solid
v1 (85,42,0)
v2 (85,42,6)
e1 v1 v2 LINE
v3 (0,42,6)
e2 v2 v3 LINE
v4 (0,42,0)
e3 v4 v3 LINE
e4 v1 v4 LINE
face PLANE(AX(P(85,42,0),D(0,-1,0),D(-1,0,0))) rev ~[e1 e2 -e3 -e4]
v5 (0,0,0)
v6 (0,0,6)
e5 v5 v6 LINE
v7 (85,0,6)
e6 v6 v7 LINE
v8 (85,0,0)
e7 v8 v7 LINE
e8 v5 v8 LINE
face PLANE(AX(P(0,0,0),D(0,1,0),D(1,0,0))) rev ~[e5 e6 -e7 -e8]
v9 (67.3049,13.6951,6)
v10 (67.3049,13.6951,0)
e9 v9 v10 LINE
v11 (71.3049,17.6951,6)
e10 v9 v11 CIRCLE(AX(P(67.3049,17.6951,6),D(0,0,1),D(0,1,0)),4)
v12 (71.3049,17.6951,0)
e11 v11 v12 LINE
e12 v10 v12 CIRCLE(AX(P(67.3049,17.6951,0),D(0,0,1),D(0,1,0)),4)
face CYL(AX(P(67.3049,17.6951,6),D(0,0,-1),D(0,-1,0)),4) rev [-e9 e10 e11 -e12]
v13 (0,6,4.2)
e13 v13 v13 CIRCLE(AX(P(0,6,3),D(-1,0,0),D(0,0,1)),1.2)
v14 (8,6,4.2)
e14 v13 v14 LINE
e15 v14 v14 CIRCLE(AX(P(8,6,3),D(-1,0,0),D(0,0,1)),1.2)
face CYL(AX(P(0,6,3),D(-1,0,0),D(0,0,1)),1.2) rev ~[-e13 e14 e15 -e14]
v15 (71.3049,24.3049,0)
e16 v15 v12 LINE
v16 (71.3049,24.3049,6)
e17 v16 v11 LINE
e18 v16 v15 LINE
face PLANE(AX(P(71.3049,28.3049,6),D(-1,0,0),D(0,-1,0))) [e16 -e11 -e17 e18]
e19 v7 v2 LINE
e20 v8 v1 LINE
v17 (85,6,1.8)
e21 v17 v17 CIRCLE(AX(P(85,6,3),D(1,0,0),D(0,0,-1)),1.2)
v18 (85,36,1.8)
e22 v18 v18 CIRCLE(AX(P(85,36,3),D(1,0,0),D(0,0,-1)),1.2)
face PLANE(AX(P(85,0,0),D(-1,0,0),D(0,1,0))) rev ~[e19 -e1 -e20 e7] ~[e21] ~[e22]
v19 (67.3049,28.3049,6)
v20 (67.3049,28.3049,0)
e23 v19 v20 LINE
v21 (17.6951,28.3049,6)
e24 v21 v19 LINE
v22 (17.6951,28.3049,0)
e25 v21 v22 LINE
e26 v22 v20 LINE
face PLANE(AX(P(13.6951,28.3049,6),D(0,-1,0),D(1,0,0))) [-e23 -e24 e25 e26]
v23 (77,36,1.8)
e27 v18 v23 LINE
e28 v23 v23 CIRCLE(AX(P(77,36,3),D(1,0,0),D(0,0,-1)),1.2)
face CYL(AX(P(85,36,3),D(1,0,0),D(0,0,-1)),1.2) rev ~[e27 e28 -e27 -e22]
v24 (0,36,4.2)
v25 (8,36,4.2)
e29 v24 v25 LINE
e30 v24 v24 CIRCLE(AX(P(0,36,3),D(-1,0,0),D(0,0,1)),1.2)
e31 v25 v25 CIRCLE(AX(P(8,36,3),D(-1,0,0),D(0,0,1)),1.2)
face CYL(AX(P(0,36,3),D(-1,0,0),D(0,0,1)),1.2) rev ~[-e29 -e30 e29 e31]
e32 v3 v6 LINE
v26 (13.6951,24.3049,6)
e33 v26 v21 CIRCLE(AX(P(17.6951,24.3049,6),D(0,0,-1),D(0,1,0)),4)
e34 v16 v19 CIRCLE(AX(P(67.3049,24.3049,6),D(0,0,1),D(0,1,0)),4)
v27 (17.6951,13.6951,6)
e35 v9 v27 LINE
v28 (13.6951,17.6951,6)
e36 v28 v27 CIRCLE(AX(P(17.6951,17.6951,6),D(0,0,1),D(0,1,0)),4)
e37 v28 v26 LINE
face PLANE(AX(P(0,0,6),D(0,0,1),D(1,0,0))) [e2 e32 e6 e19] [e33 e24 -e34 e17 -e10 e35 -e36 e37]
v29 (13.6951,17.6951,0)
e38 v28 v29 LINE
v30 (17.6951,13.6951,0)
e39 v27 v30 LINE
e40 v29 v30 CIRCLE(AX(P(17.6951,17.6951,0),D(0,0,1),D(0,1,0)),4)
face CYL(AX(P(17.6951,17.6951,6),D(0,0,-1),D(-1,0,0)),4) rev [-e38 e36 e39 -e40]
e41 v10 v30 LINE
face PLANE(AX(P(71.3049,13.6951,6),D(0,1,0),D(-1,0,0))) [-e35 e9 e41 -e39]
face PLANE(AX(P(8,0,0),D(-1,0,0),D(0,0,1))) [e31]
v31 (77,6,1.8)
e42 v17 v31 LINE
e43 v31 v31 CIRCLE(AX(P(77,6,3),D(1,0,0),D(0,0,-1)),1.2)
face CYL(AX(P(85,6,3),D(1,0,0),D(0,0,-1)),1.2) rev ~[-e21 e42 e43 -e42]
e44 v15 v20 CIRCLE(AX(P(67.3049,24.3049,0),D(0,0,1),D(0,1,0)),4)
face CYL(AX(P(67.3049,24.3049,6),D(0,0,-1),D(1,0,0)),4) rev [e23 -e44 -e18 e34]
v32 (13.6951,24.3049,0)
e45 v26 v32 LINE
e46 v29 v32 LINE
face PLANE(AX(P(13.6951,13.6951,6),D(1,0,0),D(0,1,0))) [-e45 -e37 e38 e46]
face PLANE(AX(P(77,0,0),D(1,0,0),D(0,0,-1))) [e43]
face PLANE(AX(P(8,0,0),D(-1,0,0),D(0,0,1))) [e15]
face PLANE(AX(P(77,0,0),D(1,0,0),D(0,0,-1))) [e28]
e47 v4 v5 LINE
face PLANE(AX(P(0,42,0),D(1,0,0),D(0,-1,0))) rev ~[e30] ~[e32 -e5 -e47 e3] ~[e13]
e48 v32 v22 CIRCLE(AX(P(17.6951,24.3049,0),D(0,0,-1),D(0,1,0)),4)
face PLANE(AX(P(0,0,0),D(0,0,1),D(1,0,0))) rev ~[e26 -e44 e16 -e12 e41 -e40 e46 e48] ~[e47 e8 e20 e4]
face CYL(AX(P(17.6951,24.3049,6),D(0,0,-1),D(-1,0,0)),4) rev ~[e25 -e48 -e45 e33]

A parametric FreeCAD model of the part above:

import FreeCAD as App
import Part
import Sketcher


def edges_at(feature, points):
    """Names of the edges that pass closest to the given points."""
    edges = feature.Shape.Edges
    near = lambda p: min(range(len(edges)), key=lambda i: edges[i].distToShape(Part.Vertex(*p))[0])
    return sorted({f"Edge{near(p) + 1}" for p in points})

doc = App.newDocument("Part")
body = doc.addObject("PartDesign::Body", "Body")

# Sketch on XY plane
sketch1 = doc.addObject("Sketcher::SketchObject", "Sketch")
body.addObject(sketch1)
sketch1.AttachmentSupport = (doc.XY_Plane, [""])
sketch1.MapMode = "FlatFace"
sketch1.addGeometry(Part.LineSegment(App.Vector(0, 42, 0), App.Vector(0, 0, 0)), False)
sketch1.addGeometry(Part.LineSegment(App.Vector(0, 0, 0), App.Vector(85, 0, 0)), False)
sketch1.addGeometry(Part.LineSegment(App.Vector(85, 0, 0), App.Vector(85, 42, 0)), False)
sketch1.addGeometry(Part.LineSegment(App.Vector(85, 42, 0), App.Vector(0, 42, 0)), False)
sketch1.addConstraint(Sketcher.Constraint("Coincident", 0, 2, 1, 1))
sketch1.addConstraint(Sketcher.Constraint("Coincident", 1, 2, 2, 1))
sketch1.addConstraint(Sketcher.Constraint("Coincident", 2, 2, 3, 1))
sketch1.addConstraint(Sketcher.Constraint("Coincident", 3, 2, 0, 1))
sketch1.addConstraint(Sketcher.Constraint("Vertical", 0))
sketch1.addConstraint(Sketcher.Constraint("Horizontal", 1))
sketch1.addConstraint(Sketcher.Constraint("Vertical", 2))
sketch1.addConstraint(Sketcher.Constraint("Horizontal", 3))
sketch1.addConstraint(Sketcher.Constraint("Coincident", 0, 2, -1, 1))
sketch1.addConstraint(Sketcher.Constraint("DistanceX", 1, 1, 1, 2, 85.0))
sketch1.addConstraint(Sketcher.Constraint("DistanceY", 0, 2, 0, 1, 42.0))
pad1 = doc.addObject("PartDesign::Pad", "Pad")
body.addObject(pad1)
pad1.Profile = sketch1
pad1.Length = 6

# Sketch on YZ plane
sketch2 = doc.addObject("Sketcher::SketchObject", "Sketch001")
body.addObject(sketch2)
sketch2.AttachmentSupport = (doc.YZ_Plane, [""])
sketch2.MapMode = "FlatFace"
sketch2.addGeometry(Part.Circle(App.Vector(36, 3, 0), App.Vector(0, 0, 1), 1.2), False)
sketch2.addGeometry(Part.Circle(App.Vector(6, 3, 0), App.Vector(0, 0, 1), 1.2), False)
sketch2.addConstraint(Sketcher.Constraint("Equal", 0, 1))
sketch2.addConstraint(Sketcher.Constraint("Horizontal", 0, 3, 1, 3))
sketch2.addConstraint(Sketcher.Constraint("Diameter", 0, 2.4))
sketch2.addConstraint(Sketcher.Constraint("DistanceX", -1, 1, 1, 3, 6.0))
sketch2.addConstraint(Sketcher.Constraint("DistanceX", -1, 1, 0, 3, 36.0))
sketch2.addConstraint(Sketcher.Constraint("DistanceY", -1, 1, 0, 3, 3.0))
pocket1 = doc.addObject("PartDesign::Pocket", "Pocket")
body.addObject(pocket1)
pocket1.Profile = sketch2
pocket1.Length = 8
pocket1.Reversed = True

# Sketch on YZ plane
sketch3 = doc.addObject("Sketcher::SketchObject", "Sketch002")
body.addObject(sketch3)
sketch3.AttachmentSupport = (doc.YZ_Plane, [""])
sketch3.MapMode = "FlatFace"
sketch3.AttachmentOffset = App.Placement(App.Vector(0, 0, 85), App.Rotation())
sketch3.addGeometry(Part.Circle(App.Vector(6, 3, 0), App.Vector(0, 0, 1), 1.2), False)
sketch3.addGeometry(Part.Circle(App.Vector(36, 3, 0), App.Vector(0, 0, 1), 1.2), False)
sketch3.addConstraint(Sketcher.Constraint("Equal", 0, 1))
sketch3.addConstraint(Sketcher.Constraint("Horizontal", 0, 3, 1, 3))
sketch3.addConstraint(Sketcher.Constraint("Diameter", 0, 2.4))
sketch3.addConstraint(Sketcher.Constraint("DistanceX", -1, 1, 0, 3, 6.0))
sketch3.addConstraint(Sketcher.Constraint("DistanceY", -1, 1, 0, 3, 3.0))
sketch3.addConstraint(Sketcher.Constraint("DistanceX", -1, 1, 1, 3, 36.0))
pocket2 = doc.addObject("PartDesign::Pocket", "Pocket001")
body.addObject(pocket2)
pocket2.Profile = sketch3
pocket2.Length = 8

# Sketch on XY plane
sketch4 = doc.addObject("Sketcher::SketchObject", "Sketch003")
body.addObject(sketch4)
sketch4.AttachmentSupport = (doc.XY_Plane, [""])
sketch4.MapMode = "FlatFace"
sketch4.AttachmentOffset = App.Placement(App.Vector(0, 0, 6), App.Rotation())
sketch4.addGeometry(Part.LineSegment(App.Vector(71.3049, 28.3049, 0), App.Vector(13.6951, 28.3049, 0)), False)
sketch4.addGeometry(Part.LineSegment(App.Vector(13.6951, 28.3049, 0), App.Vector(13.6951, 13.6951, 0)), False)
sketch4.addGeometry(Part.LineSegment(App.Vector(13.6951, 13.6951, 0), App.Vector(71.3049, 13.6951, 0)), False)
sketch4.addGeometry(Part.LineSegment(App.Vector(71.3049, 13.6951, 0), App.Vector(71.3049, 28.3049, 0)), False)
sketch4.addConstraint(Sketcher.Constraint("Coincident", 0, 2, 1, 1))
sketch4.addConstraint(Sketcher.Constraint("Coincident", 1, 2, 2, 1))
sketch4.addConstraint(Sketcher.Constraint("Coincident", 2, 2, 3, 1))
sketch4.addConstraint(Sketcher.Constraint("Coincident", 3, 2, 0, 1))
sketch4.addConstraint(Sketcher.Constraint("Horizontal", 0))
sketch4.addConstraint(Sketcher.Constraint("Vertical", 1))
sketch4.addConstraint(Sketcher.Constraint("Horizontal", 2))
sketch4.addConstraint(Sketcher.Constraint("Vertical", 3))
sketch4.addConstraint(Sketcher.Constraint("DistanceX", 0, 2, 0, 1, 57.6098))
sketch4.addConstraint(Sketcher.Constraint("DistanceY", 1, 2, 1, 1, 14.6098))
sketch4.addConstraint(Sketcher.Constraint("DistanceX", -1, 1, 0, 2, 13.695))
sketch4.addConstraint(Sketcher.Constraint("DistanceY", -1, 1, 0, 2, 28.305))
pocket3 = doc.addObject("PartDesign::Pocket", "Pocket002")
body.addObject(pocket3)
pocket3.Profile = sketch4
pocket3.Length = 10
doc.recompute()

fillet = doc.addObject("PartDesign::Fillet", "Fillet")
body.addObject(fillet)
fillet.Base = (pocket3, edges_at(pocket3, [
    (13.695, 28.305, 3),
    (13.695, 13.695, 3),
    (71.305, 13.695, 3),
    (71.305, 28.305, 3),
]))
fillet.Radius = 4

doc.recompute()
